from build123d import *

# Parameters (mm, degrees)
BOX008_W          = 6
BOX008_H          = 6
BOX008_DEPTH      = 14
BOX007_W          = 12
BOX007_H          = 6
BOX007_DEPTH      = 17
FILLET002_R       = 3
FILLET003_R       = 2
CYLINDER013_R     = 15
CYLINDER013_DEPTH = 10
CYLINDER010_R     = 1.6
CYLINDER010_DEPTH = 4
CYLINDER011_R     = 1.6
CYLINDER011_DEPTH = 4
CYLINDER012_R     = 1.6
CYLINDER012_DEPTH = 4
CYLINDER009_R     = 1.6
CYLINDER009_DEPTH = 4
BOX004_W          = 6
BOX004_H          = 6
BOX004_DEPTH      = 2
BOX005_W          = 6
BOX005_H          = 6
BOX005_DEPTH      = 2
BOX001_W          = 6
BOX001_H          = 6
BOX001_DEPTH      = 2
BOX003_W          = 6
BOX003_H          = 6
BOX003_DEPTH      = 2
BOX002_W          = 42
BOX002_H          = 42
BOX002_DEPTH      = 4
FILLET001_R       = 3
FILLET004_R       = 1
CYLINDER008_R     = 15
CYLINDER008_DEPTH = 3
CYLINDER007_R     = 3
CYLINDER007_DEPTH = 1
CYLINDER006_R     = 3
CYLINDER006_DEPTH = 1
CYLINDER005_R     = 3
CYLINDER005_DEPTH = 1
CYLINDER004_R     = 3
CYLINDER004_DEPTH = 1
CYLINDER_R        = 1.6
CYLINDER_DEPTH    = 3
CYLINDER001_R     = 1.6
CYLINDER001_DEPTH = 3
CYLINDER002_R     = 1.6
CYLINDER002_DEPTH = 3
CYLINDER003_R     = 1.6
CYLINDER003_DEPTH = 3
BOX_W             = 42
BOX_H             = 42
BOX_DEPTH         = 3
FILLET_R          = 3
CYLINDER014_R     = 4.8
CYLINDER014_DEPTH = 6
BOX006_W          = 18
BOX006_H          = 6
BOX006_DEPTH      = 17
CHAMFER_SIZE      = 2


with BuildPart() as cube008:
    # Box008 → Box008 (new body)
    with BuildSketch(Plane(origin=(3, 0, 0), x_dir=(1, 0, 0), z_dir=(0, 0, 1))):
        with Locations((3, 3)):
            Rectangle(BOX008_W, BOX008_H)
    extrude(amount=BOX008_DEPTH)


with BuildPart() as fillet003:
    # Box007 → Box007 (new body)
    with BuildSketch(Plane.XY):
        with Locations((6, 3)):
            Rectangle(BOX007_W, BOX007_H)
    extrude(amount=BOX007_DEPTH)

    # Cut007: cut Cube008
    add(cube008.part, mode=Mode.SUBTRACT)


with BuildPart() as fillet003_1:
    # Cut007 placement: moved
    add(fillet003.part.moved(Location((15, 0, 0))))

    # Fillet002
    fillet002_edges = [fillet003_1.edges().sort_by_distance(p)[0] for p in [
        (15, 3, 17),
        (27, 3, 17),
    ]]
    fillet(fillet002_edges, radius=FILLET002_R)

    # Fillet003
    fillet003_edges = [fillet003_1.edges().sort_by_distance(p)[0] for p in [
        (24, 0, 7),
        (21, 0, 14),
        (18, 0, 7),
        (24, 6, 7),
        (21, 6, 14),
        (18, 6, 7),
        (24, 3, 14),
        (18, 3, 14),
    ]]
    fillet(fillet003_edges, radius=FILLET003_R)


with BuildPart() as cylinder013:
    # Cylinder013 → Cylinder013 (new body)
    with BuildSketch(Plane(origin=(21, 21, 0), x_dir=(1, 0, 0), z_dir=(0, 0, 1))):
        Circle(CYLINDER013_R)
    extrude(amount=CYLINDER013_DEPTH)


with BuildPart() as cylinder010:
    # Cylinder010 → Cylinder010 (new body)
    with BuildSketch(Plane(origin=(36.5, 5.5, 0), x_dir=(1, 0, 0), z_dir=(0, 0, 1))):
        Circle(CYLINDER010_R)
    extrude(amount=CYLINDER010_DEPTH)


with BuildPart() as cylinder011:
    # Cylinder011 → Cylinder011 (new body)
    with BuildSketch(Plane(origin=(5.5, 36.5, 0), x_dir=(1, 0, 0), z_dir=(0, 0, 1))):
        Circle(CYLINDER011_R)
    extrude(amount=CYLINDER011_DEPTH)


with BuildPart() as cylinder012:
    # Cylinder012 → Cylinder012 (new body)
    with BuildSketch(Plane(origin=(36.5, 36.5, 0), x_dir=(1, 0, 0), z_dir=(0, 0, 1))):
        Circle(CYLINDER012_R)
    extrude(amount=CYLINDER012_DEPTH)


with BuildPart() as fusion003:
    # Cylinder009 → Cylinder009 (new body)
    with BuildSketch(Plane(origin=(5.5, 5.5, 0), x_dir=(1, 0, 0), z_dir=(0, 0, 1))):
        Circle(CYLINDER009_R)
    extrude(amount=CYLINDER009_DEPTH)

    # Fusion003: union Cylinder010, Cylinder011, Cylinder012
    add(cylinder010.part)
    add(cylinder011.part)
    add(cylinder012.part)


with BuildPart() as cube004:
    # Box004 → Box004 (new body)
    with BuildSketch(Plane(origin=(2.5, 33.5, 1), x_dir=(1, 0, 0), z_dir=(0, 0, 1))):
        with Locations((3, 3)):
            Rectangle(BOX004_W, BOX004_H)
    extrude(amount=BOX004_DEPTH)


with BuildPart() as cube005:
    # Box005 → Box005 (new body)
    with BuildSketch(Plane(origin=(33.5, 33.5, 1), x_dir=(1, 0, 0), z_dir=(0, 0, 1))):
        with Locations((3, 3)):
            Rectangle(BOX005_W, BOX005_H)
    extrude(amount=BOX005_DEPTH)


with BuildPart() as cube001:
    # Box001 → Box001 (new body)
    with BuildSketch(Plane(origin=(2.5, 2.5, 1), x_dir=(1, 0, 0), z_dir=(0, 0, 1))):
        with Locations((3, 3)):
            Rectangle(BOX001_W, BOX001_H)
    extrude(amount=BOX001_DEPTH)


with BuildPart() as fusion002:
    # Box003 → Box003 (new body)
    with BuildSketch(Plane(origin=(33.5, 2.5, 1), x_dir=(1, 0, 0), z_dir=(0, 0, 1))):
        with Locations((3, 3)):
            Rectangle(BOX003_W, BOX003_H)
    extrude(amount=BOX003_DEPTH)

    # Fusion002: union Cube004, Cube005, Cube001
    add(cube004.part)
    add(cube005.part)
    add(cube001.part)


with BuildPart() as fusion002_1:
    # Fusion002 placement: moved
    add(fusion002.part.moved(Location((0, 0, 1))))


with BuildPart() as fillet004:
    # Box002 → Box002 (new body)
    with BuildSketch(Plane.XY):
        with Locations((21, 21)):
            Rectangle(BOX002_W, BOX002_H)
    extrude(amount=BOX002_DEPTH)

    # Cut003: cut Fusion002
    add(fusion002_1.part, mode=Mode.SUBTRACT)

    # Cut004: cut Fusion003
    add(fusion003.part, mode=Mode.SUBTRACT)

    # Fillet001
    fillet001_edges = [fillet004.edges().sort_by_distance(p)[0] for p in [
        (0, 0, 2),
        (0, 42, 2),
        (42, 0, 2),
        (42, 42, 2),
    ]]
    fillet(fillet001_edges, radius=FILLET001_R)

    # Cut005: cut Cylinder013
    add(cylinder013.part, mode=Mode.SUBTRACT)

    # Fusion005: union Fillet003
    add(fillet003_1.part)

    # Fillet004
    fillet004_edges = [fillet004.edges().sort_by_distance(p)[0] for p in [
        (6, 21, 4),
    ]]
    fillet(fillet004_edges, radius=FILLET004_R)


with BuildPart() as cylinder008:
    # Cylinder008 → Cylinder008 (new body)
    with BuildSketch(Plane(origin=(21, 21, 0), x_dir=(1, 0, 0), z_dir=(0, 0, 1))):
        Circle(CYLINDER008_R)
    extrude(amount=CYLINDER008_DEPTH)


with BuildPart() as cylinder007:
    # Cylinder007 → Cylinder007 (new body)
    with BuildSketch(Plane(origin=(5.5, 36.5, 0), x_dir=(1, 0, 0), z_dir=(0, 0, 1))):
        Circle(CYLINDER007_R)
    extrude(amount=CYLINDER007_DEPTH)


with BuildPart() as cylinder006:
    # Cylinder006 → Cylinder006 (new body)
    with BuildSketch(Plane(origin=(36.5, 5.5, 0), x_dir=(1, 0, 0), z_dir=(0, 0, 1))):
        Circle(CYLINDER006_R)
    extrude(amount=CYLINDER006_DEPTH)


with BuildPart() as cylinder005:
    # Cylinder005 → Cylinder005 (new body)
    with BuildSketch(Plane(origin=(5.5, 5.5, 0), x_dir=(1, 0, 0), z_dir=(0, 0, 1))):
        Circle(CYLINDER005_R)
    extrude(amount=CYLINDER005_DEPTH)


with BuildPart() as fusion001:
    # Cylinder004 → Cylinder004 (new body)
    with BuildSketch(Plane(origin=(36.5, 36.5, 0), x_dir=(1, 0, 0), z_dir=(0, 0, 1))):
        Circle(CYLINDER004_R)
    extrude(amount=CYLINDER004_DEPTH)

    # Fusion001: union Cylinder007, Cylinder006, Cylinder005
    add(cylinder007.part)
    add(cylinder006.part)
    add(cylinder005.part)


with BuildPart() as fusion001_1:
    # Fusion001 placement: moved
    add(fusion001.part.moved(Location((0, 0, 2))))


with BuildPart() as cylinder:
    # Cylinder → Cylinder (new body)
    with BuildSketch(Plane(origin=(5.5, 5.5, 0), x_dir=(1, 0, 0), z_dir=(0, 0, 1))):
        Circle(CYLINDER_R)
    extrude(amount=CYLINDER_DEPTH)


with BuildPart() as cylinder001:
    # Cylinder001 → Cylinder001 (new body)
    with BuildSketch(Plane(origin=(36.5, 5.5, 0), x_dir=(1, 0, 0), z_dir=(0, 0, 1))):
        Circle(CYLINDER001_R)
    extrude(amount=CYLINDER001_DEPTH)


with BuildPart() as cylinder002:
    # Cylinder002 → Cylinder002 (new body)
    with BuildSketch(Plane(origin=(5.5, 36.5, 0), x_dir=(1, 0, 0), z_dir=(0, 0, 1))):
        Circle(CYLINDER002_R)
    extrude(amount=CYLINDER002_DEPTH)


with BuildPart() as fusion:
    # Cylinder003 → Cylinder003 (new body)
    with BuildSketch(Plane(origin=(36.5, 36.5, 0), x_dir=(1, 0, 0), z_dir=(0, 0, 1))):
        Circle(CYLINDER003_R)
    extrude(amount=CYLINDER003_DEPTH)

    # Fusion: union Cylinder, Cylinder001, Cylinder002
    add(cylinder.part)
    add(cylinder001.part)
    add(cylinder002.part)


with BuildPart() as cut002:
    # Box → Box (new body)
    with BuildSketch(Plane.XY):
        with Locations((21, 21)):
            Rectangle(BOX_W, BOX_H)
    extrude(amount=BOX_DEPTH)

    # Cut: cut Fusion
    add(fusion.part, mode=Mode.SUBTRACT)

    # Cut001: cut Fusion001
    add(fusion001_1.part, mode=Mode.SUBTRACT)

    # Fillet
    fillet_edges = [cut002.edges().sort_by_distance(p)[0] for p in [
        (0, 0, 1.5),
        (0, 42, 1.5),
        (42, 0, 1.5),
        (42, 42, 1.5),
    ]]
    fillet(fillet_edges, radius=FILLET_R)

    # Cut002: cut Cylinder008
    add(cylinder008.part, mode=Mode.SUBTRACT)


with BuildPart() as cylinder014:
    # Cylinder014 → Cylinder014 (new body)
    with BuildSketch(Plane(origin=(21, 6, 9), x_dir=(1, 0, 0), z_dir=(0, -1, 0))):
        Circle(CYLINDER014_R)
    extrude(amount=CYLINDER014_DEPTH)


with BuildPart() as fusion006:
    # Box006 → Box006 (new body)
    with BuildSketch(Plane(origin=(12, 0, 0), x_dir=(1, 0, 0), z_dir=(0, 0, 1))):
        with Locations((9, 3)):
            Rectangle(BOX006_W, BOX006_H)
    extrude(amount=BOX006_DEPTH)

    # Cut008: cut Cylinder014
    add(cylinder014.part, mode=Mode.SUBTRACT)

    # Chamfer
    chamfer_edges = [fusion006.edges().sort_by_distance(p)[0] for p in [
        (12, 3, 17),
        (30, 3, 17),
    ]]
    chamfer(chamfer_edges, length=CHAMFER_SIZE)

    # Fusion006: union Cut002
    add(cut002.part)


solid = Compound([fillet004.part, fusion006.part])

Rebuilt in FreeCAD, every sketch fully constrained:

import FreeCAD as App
import Part
import Sketcher

V = App.Vector


def edges_at(feature, points):
    """Names of the edges that pass closest to the given points."""
    edges = feature.Shape.Edges
    near = lambda p: min(range(len(edges)), key=lambda i: edges[i].distToShape(Part.Vertex(*p))[0])
    return sorted({f"Edge{near(p) + 1}" for p in points})

doc = App.newDocument("Part")
body = doc.addObject("PartDesign::Body", "Body")

sketch1 = doc.addObject("Sketcher::SketchObject", "Sketch")
body.addObject(sketch1)
sketch1.AttachmentSupport = (doc.XY_Plane, [""])
sketch1.MapMode = "FlatFace"
sketch1.addGeometry([
    Part.LineSegment(V(3, 6, 0), V(3, 0, 0)),
    Part.LineSegment(V(3, 0, 0), V(9, 0, 0)),
    Part.LineSegment(V(9, 0, 0), V(9, 6, 0)),
    Part.LineSegment(V(9, 6, 0), V(3, 6, 0)),
], False)
sketch1.addConstraint([
    Sketcher.Constraint("Coincident", 0, 2, 1, 1),
    Sketcher.Constraint("Coincident", 1, 2, 2, 1),
    Sketcher.Constraint("Coincident", 2, 2, 3, 1),
    Sketcher.Constraint("Coincident", 3, 2, 0, 1),
    Sketcher.Constraint("Vertical", 0),
    Sketcher.Constraint("Horizontal", 1),
    Sketcher.Constraint("Vertical", 2),
    Sketcher.Constraint("Horizontal", 3),
    Sketcher.Constraint("PointOnObject", 0, 2, -1),
    Sketcher.Constraint("Equal", 3, 0),
    Sketcher.Constraint("DistanceX", 1, 1, 1, 2, 6.0),
    Sketcher.Constraint("DistanceX", -1, 1, 0, 2, 3.0),
])
pad1 = doc.addObject("PartDesign::Pad", "Pad")
body.addObject(pad1)
pad1.Profile = sketch1
pad1.Length = 14
body2 = doc.addObject("PartDesign::Body", "Body001")

sketch2 = doc.addObject("Sketcher::SketchObject", "Sketch001")
body2.addObject(sketch2)
sketch2.AttachmentSupport = (doc.getObject("XY_Plane001"), [""])
sketch2.MapMode = "FlatFace"
sketch2.addGeometry([
    Part.LineSegment(V(0, 6, 0), V(0, 0, 0)),
    Part.LineSegment(V(0, 0, 0), V(12, 0, 0)),
    Part.LineSegment(V(12, 0, 0), V(12, 6, 0)),
    Part.LineSegment(V(12, 6, 0), V(0, 6, 0)),
], False)
sketch2.addConstraint([
    Sketcher.Constraint("Coincident", 0, 2, 1, 1),
    Sketcher.Constraint("Coincident", 1, 2, 2, 1),
    Sketcher.Constraint("Coincident", 2, 2, 3, 1),
    Sketcher.Constraint("Coincident", 3, 2, 0, 1),
    Sketcher.Constraint("Vertical", 0),
    Sketcher.Constraint("Horizontal", 1),
    Sketcher.Constraint("Vertical", 2),
    Sketcher.Constraint("Horizontal", 3),
    Sketcher.Constraint("Coincident", 0, 2, -1, 1),
    Sketcher.Constraint("DistanceX", 1, 1, 1, 2, 12.0),
    Sketcher.Constraint("DistanceY", 0, 2, 0, 1, 6.0),
])
pad2 = doc.addObject("PartDesign::Pad", "Pad001")
body2.addObject(pad2)
pad2.Profile = sketch2
pad2.Length = 17
doc.recompute()

boolean = doc.addObject("PartDesign::Boolean", "Boolean")
body2.addObject(boolean)
boolean.Type = "Cut"
boolean.addObjects([body])
body3 = doc.addObject("PartDesign::Body", "Body002")
doc.recompute()

body2.Placement = App.Placement(V(15, 0, 0), App.Rotation(V(0, 0, 1), 0))
boolean2 = doc.addObject("PartDesign::Boolean", "Boolean001")
body3.addObject(boolean2)
boolean2.Type = "Fuse"
boolean2.addObjects([body2])
doc.recompute()

fillet = doc.addObject("PartDesign::Fillet", "Fillet")
body3.addObject(fillet)
fillet.Base = (boolean2, edges_at(boolean2, [(15, 3, 17), (27, 3, 17)]))
fillet.Radius = 3
doc.recompute()

fillet2 = doc.addObject("PartDesign::Fillet", "Fillet001")
body3.addObject(fillet2)
fillet2.Base = (fillet, edges_at(fillet, [
    (24, 0, 7),
    (21, 0, 14),
    (18, 0, 7),
    (24, 6, 7),
    (21, 6, 14),
    (18, 6, 7),
    (24, 3, 14),
    (18, 3, 14),
]))
fillet2.Radius = 2
body4 = doc.addObject("PartDesign::Body", "Body003")

sketch3 = doc.addObject("Sketcher::SketchObject", "Sketch002")
body4.addObject(sketch3)
sketch3.AttachmentSupport = (doc.getObject("XY_Plane003"), [""])
sketch3.MapMode = "FlatFace"
sketch3.addGeometry(Part.Circle(V(21, 21, 0), V(0, 0, 1), 15), False)
sketch3.addConstraint([
    Sketcher.Constraint("Diameter", 0, 30.0),
    Sketcher.Constraint("DistanceX", -1, 1, 0, 3, 21.0),
    Sketcher.Constraint("DistanceY", -1, 1, 0, 3, 21.0),
])
pad3 = doc.addObject("PartDesign::Pad", "Pad002")
body4.addObject(pad3)
pad3.Profile = sketch3
pad3.Length = 10
body5 = doc.addObject("PartDesign::Body", "Body004")

sketch4 = doc.addObject("Sketcher::SketchObject", "Sketch003")
body5.addObject(sketch4)
sketch4.AttachmentSupport = (doc.getObject("XY_Plane004"), [""])
sketch4.MapMode = "FlatFace"
sketch4.addGeometry(Part.Circle(V(36.5, 5.5, 0), V(0, 0, 1), 1.6), False)
sketch4.addConstraint([
    Sketcher.Constraint("Diameter", 0, 3.2),
    Sketcher.Constraint("DistanceX", -1, 1, 0, 3, 36.5),
    Sketcher.Constraint("DistanceY", -1, 1, 0, 3, 5.5),
])
pad4 = doc.addObject("PartDesign::Pad", "Pad003")
body5.addObject(pad4)
pad4.Profile = sketch4
pad4.Length = 4
body6 = doc.addObject("PartDesign::Body", "Body005")

sketch5 = doc.addObject("Sketcher::SketchObject", "Sketch004")
body6.addObject(sketch5)
sketch5.AttachmentSupport = (doc.getObject("XY_Plane005"), [""])
sketch5.MapMode = "FlatFace"
sketch5.addGeometry(Part.Circle(V(5.5, 36.5, 0), V(0, 0, 1), 1.6), False)
sketch5.addConstraint([
    Sketcher.Constraint("Diameter", 0, 3.2),
    Sketcher.Constraint("DistanceX", -1, 1, 0, 3, 5.5),
    Sketcher.Constraint("DistanceY", -1, 1, 0, 3, 36.5),
])
pad5 = doc.addObject("PartDesign::Pad", "Pad004")
body6.addObject(pad5)
pad5.Profile = sketch5
pad5.Length = 4
body7 = doc.addObject("PartDesign::Body", "Body006")

sketch6 = doc.addObject("Sketcher::SketchObject", "Sketch005")
body7.addObject(sketch6)
sketch6.AttachmentSupport = (doc.getObject("XY_Plane006"), [""])
sketch6.MapMode = "FlatFace"
sketch6.addGeometry(Part.Circle(V(36.5, 36.5, 0), V(0, 0, 1), 1.6), False)
sketch6.addConstraint([
    Sketcher.Constraint("Diameter", 0, 3.2),
    Sketcher.Constraint("DistanceX", -1, 1, 0, 3, 36.5),
    Sketcher.Constraint("DistanceY", -1, 1, 0, 3, 36.5),
])
pad6 = doc.addObject("PartDesign::Pad", "Pad005")
body7.addObject(pad6)
pad6.Profile = sketch6
pad6.Length = 4
body8 = doc.addObject("PartDesign::Body", "Body007")
body8.AllowCompound = True

sketch7 = doc.addObject("Sketcher::SketchObject", "Sketch006")
body8.addObject(sketch7)
sketch7.AttachmentSupport = (doc.getObject("XY_Plane007"), [""])
sketch7.MapMode = "FlatFace"
sketch7.addGeometry(Part.Circle(V(5.5, 5.5, 0), V(0, 0, 1), 1.6), False)
sketch7.addConstraint([
    Sketcher.Constraint("Diameter", 0, 3.2),
    Sketcher.Constraint("DistanceX", -1, 1, 0, 3, 5.5),
    Sketcher.Constraint("DistanceY", -1, 1, 0, 3, 5.5),
])
pad7 = doc.addObject("PartDesign::Pad", "Pad006")
body8.addObject(pad7)
pad7.Profile = sketch7
pad7.Length = 4
doc.recompute()

boolean3 = doc.addObject("PartDesign::Boolean", "Boolean002")
body8.addObject(boolean3)
boolean3.Type = "Fuse"
boolean3.addObjects([body5])
doc.recompute()

boolean4 = doc.addObject("PartDesign::Boolean", "Boolean003")
body8.addObject(boolean4)
boolean4.Type = "Fuse"
boolean4.addObjects([body6])
doc.recompute()

boolean5 = doc.addObject("PartDesign::Boolean", "Boolean004")
body8.addObject(boolean5)
boolean5.Type = "Fuse"
boolean5.addObjects([body7])
body9 = doc.addObject("PartDesign::Body", "Body008")

sketch8 = doc.addObject("Sketcher::SketchObject", "Sketch007")
body9.addObject(sketch8)
sketch8.AttachmentSupport = (doc.getObject("XY_Plane008"), [""])
sketch8.MapMode = "FlatFace"
sketch8.AttachmentOffset = App.Placement(V(0, 0, 1), App.Rotation())
sketch8.addGeometry([
    Part.LineSegment(V(2.5, 39.5, 0), V(2.5, 33.5, 0)),
    Part.LineSegment(V(2.5, 33.5, 0), V(8.5, 33.5, 0)),
    Part.LineSegment(V(8.5, 33.5, 0), V(8.5, 39.5, 0)),
    Part.LineSegment(V(8.5, 39.5, 0), V(2.5, 39.5, 0)),
], False)
sketch8.addConstraint([
    Sketcher.Constraint("Coincident", 0, 2, 1, 1),
    Sketcher.Constraint("Coincident", 1, 2, 2, 1),
    Sketcher.Constraint("Coincident", 2, 2, 3, 1),
    Sketcher.Constraint("Coincident", 3, 2, 0, 1),
    Sketcher.Constraint("Vertical", 0),
    Sketcher.Constraint("Horizontal", 1),
    Sketcher.Constraint("Vertical", 2),
    Sketcher.Constraint("Horizontal", 3),
    Sketcher.Constraint("Equal", 3, 0),
    Sketcher.Constraint("DistanceX", 1, 1, 1, 2, 6.0),
    Sketcher.Constraint("DistanceX", -1, 1, 0, 2, 2.5),
    Sketcher.Constraint("DistanceY", -1, 1, 0, 2, 33.5),
])
pad8 = doc.addObject("PartDesign::Pad", "Pad007")
body9.addObject(pad8)
pad8.Profile = sketch8
pad8.Length = 2
body10 = doc.addObject("PartDesign::Body", "Body009")

sketch9 = doc.addObject("Sketcher::SketchObject", "Sketch008")
body10.addObject(sketch9)
sketch9.AttachmentSupport = (doc.getObject("XY_Plane009"), [""])
sketch9.MapMode = "FlatFace"
sketch9.AttachmentOffset = App.Placement(V(0, 0, 1), App.Rotation())
sketch9.addGeometry([
    Part.LineSegment(V(33.5, 39.5, 0), V(33.5, 33.5, 0)),
    Part.LineSegment(V(33.5, 33.5, 0), V(39.5, 33.5, 0)),
    Part.LineSegment(V(39.5, 33.5, 0), V(39.5, 39.5, 0)),
    Part.LineSegment(V(39.5, 39.5, 0), V(33.5, 39.5, 0)),
], False)
sketch9.addConstraint([
    Sketcher.Constraint("Coincident", 0, 2, 1, 1),
    Sketcher.Constraint("Coincident", 1, 2, 2, 1),
    Sketcher.Constraint("Coincident", 2, 2, 3, 1),
    Sketcher.Constraint("Coincident", 3, 2, 0, 1),
    Sketcher.Constraint("Vertical", 0),
    Sketcher.Constraint("Horizontal", 1),
    Sketcher.Constraint("Vertical", 2),
    Sketcher.Constraint("Horizontal", 3),
    Sketcher.Constraint("Equal", 3, 0),
    Sketcher.Constraint("DistanceX", 1, 1, 1, 2, 6.0),
    Sketcher.Constraint("DistanceX", -1, 1, 0, 2, 33.5),
    Sketcher.Constraint("DistanceY", -1, 1, 0, 2, 33.5),
])
pad9 = doc.addObject("PartDesign::Pad", "Pad008")
body10.addObject(pad9)
pad9.Profile = sketch9
pad9.Length = 2
body11 = doc.addObject("PartDesign::Body", "Body010")

sketch10 = doc.addObject("Sketcher::SketchObject", "Sketch009")
body11.addObject(sketch10)
sketch10.AttachmentSupport = (doc.getObject("XY_Plane010"), [""])
sketch10.MapMode = "FlatFace"
sketch10.AttachmentOffset = App.Placement(V(0, 0, 1), App.Rotation())
sketch10.addGeometry([
    Part.LineSegment(V(2.5, 8.5, 0), V(2.5, 2.5, 0)),
    Part.LineSegment(V(2.5, 2.5, 0), V(8.5, 2.5, 0)),
    Part.LineSegment(V(8.5, 2.5, 0), V(8.5, 8.5, 0)),
    Part.LineSegment(V(8.5, 8.5, 0), V(2.5, 8.5, 0)),
], False)
sketch10.addConstraint([
    Sketcher.Constraint("Coincident", 0, 2, 1, 1),
    Sketcher.Constraint("Coincident", 1, 2, 2, 1),
    Sketcher.Constraint("Coincident", 2, 2, 3, 1),
    Sketcher.Constraint("Coincident", 3, 2, 0, 1),
    Sketcher.Constraint("Vertical", 0),
    Sketcher.Constraint("Horizontal", 1),
    Sketcher.Constraint("Vertical", 2),
    Sketcher.Constraint("Horizontal", 3),
    Sketcher.Constraint("Equal", 3, 0),
    Sketcher.Constraint("DistanceX", 1, 1, 1, 2, 6.0),
    Sketcher.Constraint("DistanceX", -1, 1, 0, 2, 2.5),
    Sketcher.Constraint("DistanceY", -1, 1, 0, 2, 2.5),
])
pad10 = doc.addObject("PartDesign::Pad", "Pad009")
body11.addObject(pad10)
pad10.Profile = sketch10
pad10.Length = 2
body12 = doc.addObject("PartDesign::Body", "Body011")
body12.AllowCompound = True

sketch11 = doc.addObject("Sketcher::SketchObject", "Sketch010")
body12.addObject(sketch11)
sketch11.AttachmentSupport = (doc.getObject("XY_Plane011"), [""])
sketch11.MapMode = "FlatFace"
sketch11.AttachmentOffset = App.Placement(V(0, 0, 1), App.Rotation())
sketch11.addGeometry([
    Part.LineSegment(V(33.5, 8.5, 0), V(33.5, 2.5, 0)),
    Part.LineSegment(V(33.5, 2.5, 0), V(39.5, 2.5, 0)),
    Part.LineSegment(V(39.5, 2.5, 0), V(39.5, 8.5, 0)),
    Part.LineSegment(V(39.5, 8.5, 0), V(33.5, 8.5, 0)),
], False)
sketch11.addConstraint([
    Sketcher.Constraint("Coincident", 0, 2, 1, 1),
    Sketcher.Constraint("Coincident", 1, 2, 2, 1),
    Sketcher.Constraint("Coincident", 2, 2, 3, 1),
    Sketcher.Constraint("Coincident", 3, 2, 0, 1),
    Sketcher.Constraint("Vertical", 0),
    Sketcher.Constraint("Horizontal", 1),
    Sketcher.Constraint("Vertical", 2),
    Sketcher.Constraint("Horizontal", 3),
    Sketcher.Constraint("Equal", 3, 0),
    Sketcher.Constraint("DistanceX", 1, 1, 1, 2, 6.0),
    Sketcher.Constraint("DistanceX", -1, 1, 0, 2, 33.5),
    Sketcher.Constraint("DistanceY", -1, 1, 0, 2, 2.5),
])
pad11 = doc.addObject("PartDesign::Pad", "Pad010")
body12.addObject(pad11)
pad11.Profile = sketch11
pad11.Length = 2
doc.recompute()

boolean6 = doc.addObject("PartDesign::Boolean", "Boolean005")
body12.addObject(boolean6)
boolean6.Type = "Fuse"
boolean6.addObjects([body9])
doc.recompute()

boolean7 = doc.addObject("PartDesign::Boolean", "Boolean006")
body12.addObject(boolean7)
boolean7.Type = "Fuse"
boolean7.addObjects([body10])
doc.recompute()

boolean8 = doc.addObject("PartDesign::Boolean", "Boolean007")
body12.addObject(boolean8)
boolean8.Type = "Fuse"
boolean8.addObjects([body11])
body13 = doc.addObject("PartDesign::Body", "Body012")
body13.AllowCompound = True
doc.recompute()

body12.Placement = App.Placement(V(0, 0, 1), App.Rotation(V(0, 0, 1), 0))
boolean9 = doc.addObject("PartDesign::Boolean", "Boolean008")
body13.addObject(boolean9)
boolean9.Type = "Fuse"
boolean9.addObjects([body12])
body14 = doc.addObject("PartDesign::Body", "Body013")

sketch12 = doc.addObject("Sketcher::SketchObject", "Sketch011")
body14.addObject(sketch12)
sketch12.AttachmentSupport = (doc.getObject("XY_Plane013"), [""])
sketch12.MapMode = "FlatFace"
sketch12.addGeometry([
    Part.LineSegment(V(0, 42, 0), V(0, 0, 0)),
    Part.LineSegment(V(0, 0, 0), V(42, 0, 0)),
    Part.LineSegment(V(42, 0, 0), V(42, 42, 0)),
    Part.LineSegment(V(42, 42, 0), V(0, 42, 0)),
], False)
sketch12.addConstraint([
    Sketcher.Constraint("Coincident", 0, 2, 1, 1),
    Sketcher.Constraint("Coincident", 1, 2, 2, 1),
    Sketcher.Constraint("Coincident", 2, 2, 3, 1),
    Sketcher.Constraint("Coincident", 3, 2, 0, 1),
    Sketcher.Constraint("Vertical", 0),
    Sketcher.Constraint("Horizontal", 1),
    Sketcher.Constraint("Vertical", 2),
    Sketcher.Constraint("Horizontal", 3),
    Sketcher.Constraint("Coincident", 0, 2, -1, 1),
    Sketcher.Constraint("Equal", 3, 0),
    Sketcher.Constraint("DistanceX", 1, 1, 1, 2, 42.0),
])
pad12 = doc.addObject("PartDesign::Pad", "Pad011")
body14.addObject(pad12)
pad12.Profile = sketch12
pad12.Length = 4
doc.recompute()

boolean10 = doc.addObject("PartDesign::Boolean", "Boolean009")
body14.addObject(boolean10)
boolean10.Type = "Cut"
boolean10.addObjects([body13])
doc.recompute()

boolean11 = doc.addObject("PartDesign::Boolean", "Boolean010")
body14.addObject(boolean11)
boolean11.Type = "Cut"
boolean11.addObjects([body8])
doc.recompute()

fillet3 = doc.addObject("PartDesign::Fillet", "Fillet002")
body14.addObject(fillet3)
fillet3.Base = (boolean11, edges_at(boolean11, [
    (0, 0, 2),
    (0, 42, 2),
    (42, 0, 2),
    (42, 42, 2),
]))
fillet3.Radius = 3
doc.recompute()

boolean12 = doc.addObject("PartDesign::Boolean", "Boolean011")
body14.addObject(boolean12)
boolean12.Type = "Cut"
boolean12.addObjects([body4])
doc.recompute()

boolean13 = doc.addObject("PartDesign::Boolean", "Boolean012")
body14.addObject(boolean13)
boolean13.Type = "Fuse"
boolean13.addObjects([body3])
doc.recompute()

fillet4 = doc.addObject("PartDesign::Fillet", "Fillet003")
body14.addObject(fillet4)
fillet4.Base = (boolean13, edges_at(boolean13, [(6, 21, 4)]))
fillet4.Radius = 1
body15 = doc.addObject("PartDesign::Body", "Body014")

sketch13 = doc.addObject("Sketcher::SketchObject", "Sketch012")
body15.addObject(sketch13)
sketch13.AttachmentSupport = (doc.getObject("XY_Plane014"), [""])
sketch13.MapMode = "FlatFace"
sketch13.addGeometry(Part.Circle(V(21, 21, 0), V(0, 0, 1), 15), False)
sketch13.addConstraint([
    Sketcher.Constraint("Diameter", 0, 30.0),
    Sketcher.Constraint("DistanceX", -1, 1, 0, 3, 21.0),
    Sketcher.Constraint("DistanceY", -1, 1, 0, 3, 21.0),
])
pad13 = doc.addObject("PartDesign::Pad", "Pad012")
body15.addObject(pad13)
pad13.Profile = sketch13
pad13.Length = 3
body16 = doc.addObject("PartDesign::Body", "Body015")

sketch14 = doc.addObject("Sketcher::SketchObject", "Sketch013")
body16.addObject(sketch14)
sketch14.AttachmentSupport = (doc.getObject("XY_Plane015"), [""])
sketch14.MapMode = "FlatFace"
sketch14.addGeometry(Part.Circle(V(5.5, 36.5, 0), V(0, 0, 1), 3), False)
sketch14.addConstraint([
    Sketcher.Constraint("Diameter", 0, 6.0),
    Sketcher.Constraint("DistanceX", -1, 1, 0, 3, 5.5),
    Sketcher.Constraint("DistanceY", -1, 1, 0, 3, 36.5),
])
pad14 = doc.addObject("PartDesign::Pad", "Pad013")
body16.addObject(pad14)
pad14.Profile = sketch14
pad14.Length = 1
body17 = doc.addObject("PartDesign::Body", "Body016")

sketch15 = doc.addObject("Sketcher::SketchObject", "Sketch014")
body17.addObject(sketch15)
sketch15.AttachmentSupport = (doc.getObject("XY_Plane016"), [""])
sketch15.MapMode = "FlatFace"
sketch15.addGeometry(Part.Circle(V(36.5, 5.5, 0), V(0, 0, 1), 3), False)
sketch15.addConstraint([
    Sketcher.Constraint("Diameter", 0, 6.0),
    Sketcher.Constraint("DistanceX", -1, 1, 0, 3, 36.5),
    Sketcher.Constraint("DistanceY", -1, 1, 0, 3, 5.5),
])
pad15 = doc.addObject("PartDesign::Pad", "Pad014")
body17.addObject(pad15)
pad15.Profile = sketch15
pad15.Length = 1
body18 = doc.addObject("PartDesign::Body", "Body017")

sketch16 = doc.addObject("Sketcher::SketchObject", "Sketch015")
body18.addObject(sketch16)
sketch16.AttachmentSupport = (doc.getObject("XY_Plane017"), [""])
sketch16.MapMode = "FlatFace"
sketch16.addGeometry(Part.Circle(V(5.5, 5.5, 0), V(0, 0, 1), 3), False)
sketch16.addConstraint([
    Sketcher.Constraint("Diameter", 0, 6.0),
    Sketcher.Constraint("DistanceX", -1, 1, 0, 3, 5.5),
    Sketcher.Constraint("DistanceY", -1, 1, 0, 3, 5.5),
])
pad16 = doc.addObject("PartDesign::Pad", "Pad015")
body18.addObject(pad16)
pad16.Profile = sketch16
pad16.Length = 1
body19 = doc.addObject("PartDesign::Body", "Body018")
body19.AllowCompound = True

sketch17 = doc.addObject("Sketcher::SketchObject", "Sketch016")
body19.addObject(sketch17)
sketch17.AttachmentSupport = (doc.getObject("XY_Plane018"), [""])
sketch17.MapMode = "FlatFace"
sketch17.addGeometry(Part.Circle(V(36.5, 36.5, 0), V(0, 0, 1), 3), False)
sketch17.addConstraint([
    Sketcher.Constraint("Diameter", 0, 6.0),
    Sketcher.Constraint("DistanceX", -1, 1, 0, 3, 36.5),
    Sketcher.Constraint("DistanceY", -1, 1, 0, 3, 36.5),
])
pad17 = doc.addObject("PartDesign::Pad", "Pad016")
body19.addObject(pad17)
pad17.Profile = sketch17
pad17.Length = 1
doc.recompute()

boolean14 = doc.addObject("PartDesign::Boolean", "Boolean013")
body19.addObject(boolean14)
boolean14.Type = "Fuse"
boolean14.addObjects([body16])
doc.recompute()

boolean15 = doc.addObject("PartDesign::Boolean", "Boolean014")
body19.addObject(boolean15)
boolean15.Type = "Fuse"
boolean15.addObjects([body17])
doc.recompute()

boolean16 = doc.addObject("PartDesign::Boolean", "Boolean015")
body19.addObject(boolean16)
boolean16.Type = "Fuse"
boolean16.addObjects([body18])
body20 = doc.addObject("PartDesign::Body", "Body019")
body20.AllowCompound = True
doc.recompute()

body19.Placement = App.Placement(V(0, 0, 2), App.Rotation(V(0, 0, 1), 0))
boolean17 = doc.addObject("PartDesign::Boolean", "Boolean016")
body20.addObject(boolean17)
boolean17.Type = "Fuse"
boolean17.addObjects([body19])
body21 = doc.addObject("PartDesign::Body", "Body020")

sketch18 = doc.addObject("Sketcher::SketchObject", "Sketch017")
body21.addObject(sketch18)
sketch18.AttachmentSupport = (doc.getObject("XY_Plane020"), [""])
sketch18.MapMode = "FlatFace"
sketch18.addGeometry(Part.Circle(V(5.5, 5.5, 0), V(0, 0, 1), 1.6), False)
sketch18.addConstraint([
    Sketcher.Constraint("Diameter", 0, 3.2),
    Sketcher.Constraint("DistanceX", -1, 1, 0, 3, 5.5),
    Sketcher.Constraint("DistanceY", -1, 1, 0, 3, 5.5),
])
pad18 = doc.addObject("PartDesign::Pad", "Pad017")
body21.addObject(pad18)
pad18.Profile = sketch18
pad18.Length = 3
body22 = doc.addObject("PartDesign::Body", "Body021")

sketch19 = doc.addObject("Sketcher::SketchObject", "Sketch018")
body22.addObject(sketch19)
sketch19.AttachmentSupport = (doc.getObject("XY_Plane021"), [""])
sketch19.MapMode = "FlatFace"
sketch19.addGeometry(Part.Circle(V(36.5, 5.5, 0), V(0, 0, 1), 1.6), False)
sketch19.addConstraint([
    Sketcher.Constraint("Diameter", 0, 3.2),
    Sketcher.Constraint("DistanceX", -1, 1, 0, 3, 36.5),
    Sketcher.Constraint("DistanceY", -1, 1, 0, 3, 5.5),
])
pad19 = doc.addObject("PartDesign::Pad", "Pad018")
body22.addObject(pad19)
pad19.Profile = sketch19
pad19.Length = 3
body23 = doc.addObject("PartDesign::Body", "Body022")

sketch20 = doc.addObject("Sketcher::SketchObject", "Sketch019")
body23.addObject(sketch20)
sketch20.AttachmentSupport = (doc.getObject("XY_Plane022"), [""])
sketch20.MapMode = "FlatFace"
sketch20.addGeometry(Part.Circle(V(5.5, 36.5, 0), V(0, 0, 1), 1.6), False)
sketch20.addConstraint([
    Sketcher.Constraint("Diameter", 0, 3.2),
    Sketcher.Constraint("DistanceX", -1, 1, 0, 3, 5.5),
    Sketcher.Constraint("DistanceY", -1, 1, 0, 3, 36.5),
])
pad20 = doc.addObject("PartDesign::Pad", "Pad019")
body23.addObject(pad20)
pad20.Profile = sketch20
pad20.Length = 3
body24 = doc.addObject("PartDesign::Body", "Body023")
body24.AllowCompound = True

sketch21 = doc.addObject("Sketcher::SketchObject", "Sketch020")
body24.addObject(sketch21)
sketch21.AttachmentSupport = (doc.getObject("XY_Plane023"), [""])
sketch21.MapMode = "FlatFace"
sketch21.addGeometry(Part.Circle(V(36.5, 36.5, 0), V(0, 0, 1), 1.6), False)
sketch21.addConstraint([
    Sketcher.Constraint("Diameter", 0, 3.2),
    Sketcher.Constraint("DistanceX", -1, 1, 0, 3, 36.5),
    Sketcher.Constraint("DistanceY", -1, 1, 0, 3, 36.5),
])
pad21 = doc.addObject("PartDesign::Pad", "Pad020")
body24.addObject(pad21)
pad21.Profile = sketch21
pad21.Length = 3
doc.recompute()

boolean18 = doc.addObject("PartDesign::Boolean", "Boolean017")
body24.addObject(boolean18)
boolean18.Type = "Fuse"
boolean18.addObjects([body21])
doc.recompute()

boolean19 = doc.addObject("PartDesign::Boolean", "Boolean018")
body24.addObject(boolean19)
boolean19.Type = "Fuse"
boolean19.addObjects([body22])
doc.recompute()

boolean20 = doc.addObject("PartDesign::Boolean", "Boolean019")
body24.addObject(boolean20)
boolean20.Type = "Fuse"
boolean20.addObjects([body23])
body25 = doc.addObject("PartDesign::Body", "Body024")

sketch22 = doc.addObject("Sketcher::SketchObject", "Sketch021")
body25.addObject(sketch22)
sketch22.AttachmentSupport = (doc.getObject("XY_Plane024"), [""])
sketch22.MapMode = "FlatFace"
sketch22.addGeometry([
    Part.LineSegment(V(0, 42, 0), V(0, 0, 0)),
    Part.LineSegment(V(0, 0, 0), V(42, 0, 0)),
    Part.LineSegment(V(42, 0, 0), V(42, 42, 0)),
    Part.LineSegment(V(42, 42, 0), V(0, 42, 0)),
], False)
sketch22.addConstraint([
    Sketcher.Constraint("Coincident", 0, 2, 1, 1),
    Sketcher.Constraint("Coincident", 1, 2, 2, 1),
    Sketcher.Constraint("Coincident", 2, 2, 3, 1),
    Sketcher.Constraint("Coincident", 3, 2, 0, 1),
    Sketcher.Constraint("Vertical", 0),
    Sketcher.Constraint("Horizontal", 1),
    Sketcher.Constraint("Vertical", 2),
    Sketcher.Constraint("Horizontal", 3),
    Sketcher.Constraint("Coincident", 0, 2, -1, 1),
    Sketcher.Constraint("Equal", 3, 0),
    Sketcher.Constraint("DistanceX", 1, 1, 1, 2, 42.0),
])
pad22 = doc.addObject("PartDesign::Pad", "Pad021")
body25.addObject(pad22)
pad22.Profile = sketch22
pad22.Length = 3
doc.recompute()

boolean21 = doc.addObject("PartDesign::Boolean", "Boolean020")
body25.addObject(boolean21)
boolean21.Type = "Cut"
boolean21.addObjects([body24])
doc.recompute()

boolean22 = doc.addObject("PartDesign::Boolean", "Boolean021")
body25.addObject(boolean22)
boolean22.Type = "Cut"
boolean22.addObjects([body20])
doc.recompute()

fillet5 = doc.addObject("PartDesign::Fillet", "Fillet004")
body25.addObject(fillet5)
fillet5.Base = (boolean22, edges_at(boolean22, [
    (0, 0, 1.5),
    (0, 42, 1.5),
    (42, 0, 1.5),
    (42, 42, 1.5),
]))
fillet5.Radius = 3
doc.recompute()

boolean23 = doc.addObject("PartDesign::Boolean", "Boolean022")
body25.addObject(boolean23)
boolean23.Type = "Cut"
boolean23.addObjects([body15])
body26 = doc.addObject("PartDesign::Body", "Body025")

sketch23 = doc.addObject("Sketcher::SketchObject", "Sketch022")
body26.addObject(sketch23)
sketch23.AttachmentSupport = (doc.getObject("XZ_Plane025"), [""])
sketch23.MapMode = "FlatFace"
sketch23.AttachmentOffset = App.Placement(V(0, 0, -6), App.Rotation())
sketch23.addGeometry(Part.Circle(V(21, 9, 0), V(0, 0, 1), 4.8), False)
sketch23.addConstraint([
    Sketcher.Constraint("Diameter", 0, 9.6),
    Sketcher.Constraint("DistanceX", -1, 1, 0, 3, 21.0),
    Sketcher.Constraint("DistanceY", -1, 1, 0, 3, 9.0),
])
pad23 = doc.addObject("PartDesign::Pad", "Pad022")
body26.addObject(pad23)
pad23.Profile = sketch23
pad23.Length = 6
body27 = doc.addObject("PartDesign::Body", "Body026")

sketch24 = doc.addObject("Sketcher::SketchObject", "Sketch023")
body27.addObject(sketch24)
sketch24.AttachmentSupport = (doc.getObject("XY_Plane026"), [""])
sketch24.MapMode = "FlatFace"
sketch24.addGeometry([
    Part.LineSegment(V(12, 6, 0), V(12, 0, 0)),
    Part.LineSegment(V(12, 0, 0), V(30, 0, 0)),
    Part.LineSegment(V(30, 0, 0), V(30, 6, 0)),
    Part.LineSegment(V(30, 6, 0), V(12, 6, 0)),
], False)
sketch24.addConstraint([
    Sketcher.Constraint("Coincident", 0, 2, 1, 1),
    Sketcher.Constraint("Coincident", 1, 2, 2, 1),
    Sketcher.Constraint("Coincident", 2, 2, 3, 1),
    Sketcher.Constraint("Coincident", 3, 2, 0, 1),
    Sketcher.Constraint("Vertical", 0),
    Sketcher.Constraint("Horizontal", 1),
    Sketcher.Constraint("Vertical", 2),
    Sketcher.Constraint("Horizontal", 3),
    Sketcher.Constraint("PointOnObject", 0, 2, -1),
    Sketcher.Constraint("DistanceX", 1, 1, 1, 2, 18.0),
    Sketcher.Constraint("DistanceY", 0, 2, 0, 1, 6.0),
    Sketcher.Constraint("DistanceX", -1, 1, 0, 2, 12.0),
])
pad24 = doc.addObject("PartDesign::Pad", "Pad023")
body27.addObject(pad24)
pad24.Profile = sketch24
pad24.Length = 17
doc.recompute()

boolean24 = doc.addObject("PartDesign::Boolean", "Boolean023")
body27.addObject(boolean24)
boolean24.Type = "Cut"
boolean24.addObjects([body26])
doc.recompute()

chamfer = doc.addObject("PartDesign::Chamfer", "Chamfer")
body27.addObject(chamfer)
chamfer.Base = (boolean24, edges_at(boolean24, [(12, 3, 17), (30, 3, 17)]))
chamfer.Size = 2
doc.recompute()

boolean25 = doc.addObject("PartDesign::Boolean", "Boolean024")
body27.addObject(boolean25)
boolean25.Type = "Fuse"
boolean25.addObjects([body25])

doc.recompute()
